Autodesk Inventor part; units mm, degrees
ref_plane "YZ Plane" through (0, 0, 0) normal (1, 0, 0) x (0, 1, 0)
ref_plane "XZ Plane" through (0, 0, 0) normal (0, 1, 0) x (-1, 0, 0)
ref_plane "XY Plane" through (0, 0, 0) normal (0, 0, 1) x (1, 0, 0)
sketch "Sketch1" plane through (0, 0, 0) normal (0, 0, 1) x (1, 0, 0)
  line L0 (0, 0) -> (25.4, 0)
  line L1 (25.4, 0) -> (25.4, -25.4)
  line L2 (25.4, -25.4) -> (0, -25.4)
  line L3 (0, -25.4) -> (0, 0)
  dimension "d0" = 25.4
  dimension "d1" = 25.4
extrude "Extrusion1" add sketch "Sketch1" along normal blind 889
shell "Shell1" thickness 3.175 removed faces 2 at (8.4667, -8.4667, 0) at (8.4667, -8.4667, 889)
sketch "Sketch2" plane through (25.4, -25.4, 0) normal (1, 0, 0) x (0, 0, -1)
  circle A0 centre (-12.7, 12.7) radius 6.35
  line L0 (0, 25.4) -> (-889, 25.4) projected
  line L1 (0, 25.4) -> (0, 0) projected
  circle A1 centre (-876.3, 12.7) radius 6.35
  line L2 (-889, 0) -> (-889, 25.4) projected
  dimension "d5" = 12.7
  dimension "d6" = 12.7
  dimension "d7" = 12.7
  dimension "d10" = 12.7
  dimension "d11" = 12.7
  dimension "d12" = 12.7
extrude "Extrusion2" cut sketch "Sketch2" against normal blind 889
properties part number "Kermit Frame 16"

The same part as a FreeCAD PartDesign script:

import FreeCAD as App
import Part
import Sketcher
Q = App.Units.Quantity


def faces_at(feature, points):
    """Names of the faces that lie closest to the given points."""
    faces = feature.Shape.Faces
    near = lambda p: min(range(len(faces)), key=lambda i: faces[i].distToShape(Part.Vertex(*p))[0])
    return sorted({f"Face{near(p) + 1}" for p in points})


def add_polygon(sketch, points):
    """Adds a closed chain of lines whose ends are joined by coincident constraints."""
    first, n = sketch.GeometryCount, len(points)
    for a, b in zip(points, points[1:] + points[:1]):
        sketch.addGeometry(Part.LineSegment(App.Vector(*a, 0), App.Vector(*b, 0)), False)
    for i in range(n):
        sketch.addConstraint(Sketcher.Constraint("Coincident", first + i, 2, first + (i + 1) % n, 1))

doc = App.newDocument("Part")
body = doc.addObject("PartDesign::Body", "Body")

# Sketch on XY plane
sketch1 = doc.addObject("Sketcher::SketchObject", "Sketch")
body.addObject(sketch1)
sketch1.AttachmentSupport = (doc.XY_Plane, [""])
sketch1.MapMode = "FlatFace"
add_polygon(sketch1, [(25, 0), (0, 0), (0, -25), (25, -25)])  # lines 0-3
sketch1.addConstraint([
    Sketcher.Constraint("Horizontal", 0),
    Sketcher.Constraint("Vertical", 1),
    Sketcher.Constraint("Horizontal", 2),
    Sketcher.Constraint("Vertical", 3),
    Sketcher.Constraint("Coincident", 0, 2, -1, 1),
    Sketcher.Constraint("Equal", 2, 1),
    Sketcher.Constraint("DistanceX", 0, 2, 0, 1, Q("1 in")),
])
pad1 = doc.addObject("PartDesign::Pad", "Pad")
body.addObject(pad1)
pad1.Profile = sketch1
pad1.Length = Q("35 in")
doc.recompute()

thickness = doc.addObject("PartDesign::Thickness", "Thickness")
body.addObject(thickness)
thickness.Base = (pad1, faces_at(pad1, [(8.467, -8.467, 0), (8.467, -8.467, 889)]))
thickness.Value = Q("0.125 in")
thickness.Reversed = True
thickness.Join = "Intersection"

# Sketch on YZ plane
sketch2 = doc.addObject("Sketcher::SketchObject", "Sketch001")
body.addObject(sketch2)
sketch2.AttachmentSupport = (doc.YZ_Plane, [""])
sketch2.MapMode = "FlatFace"
sketch2.AttachmentOffset = App.Placement(App.Vector(0, 0, 1 * 25.4), App.Rotation())
sketch2.addGeometry([
    Part.Circle(App.Vector(-13, 13, 0), App.Vector(0, 0, 1), 6),
    Part.Circle(App.Vector(-13, 876, 0), App.Vector(0, 0, 1), 6),
], False)
sketch2.addConstraint([
    Sketcher.Constraint("Equal", 0, 1),
    Sketcher.Constraint("Vertical", 0, 3, 1, 3),
    Sketcher.Constraint("Diameter", 0, Q("0.5 in")),
    Sketcher.Constraint("DistanceX", 0, 3, -1, 1, Q("0.5 in")),
    Sketcher.Constraint("DistanceY", -1, 1, 0, 3, Q("0.5 in")),
    Sketcher.Constraint("DistanceY", 0, 3, 1, 3, Q("34 in")),
])
pocket1 = doc.addObject("PartDesign::Pocket", "Pocket")
body.addObject(pocket1)
pocket1.Profile = sketch2
pocket1.Length = Q("35 in")

doc.recompute()
